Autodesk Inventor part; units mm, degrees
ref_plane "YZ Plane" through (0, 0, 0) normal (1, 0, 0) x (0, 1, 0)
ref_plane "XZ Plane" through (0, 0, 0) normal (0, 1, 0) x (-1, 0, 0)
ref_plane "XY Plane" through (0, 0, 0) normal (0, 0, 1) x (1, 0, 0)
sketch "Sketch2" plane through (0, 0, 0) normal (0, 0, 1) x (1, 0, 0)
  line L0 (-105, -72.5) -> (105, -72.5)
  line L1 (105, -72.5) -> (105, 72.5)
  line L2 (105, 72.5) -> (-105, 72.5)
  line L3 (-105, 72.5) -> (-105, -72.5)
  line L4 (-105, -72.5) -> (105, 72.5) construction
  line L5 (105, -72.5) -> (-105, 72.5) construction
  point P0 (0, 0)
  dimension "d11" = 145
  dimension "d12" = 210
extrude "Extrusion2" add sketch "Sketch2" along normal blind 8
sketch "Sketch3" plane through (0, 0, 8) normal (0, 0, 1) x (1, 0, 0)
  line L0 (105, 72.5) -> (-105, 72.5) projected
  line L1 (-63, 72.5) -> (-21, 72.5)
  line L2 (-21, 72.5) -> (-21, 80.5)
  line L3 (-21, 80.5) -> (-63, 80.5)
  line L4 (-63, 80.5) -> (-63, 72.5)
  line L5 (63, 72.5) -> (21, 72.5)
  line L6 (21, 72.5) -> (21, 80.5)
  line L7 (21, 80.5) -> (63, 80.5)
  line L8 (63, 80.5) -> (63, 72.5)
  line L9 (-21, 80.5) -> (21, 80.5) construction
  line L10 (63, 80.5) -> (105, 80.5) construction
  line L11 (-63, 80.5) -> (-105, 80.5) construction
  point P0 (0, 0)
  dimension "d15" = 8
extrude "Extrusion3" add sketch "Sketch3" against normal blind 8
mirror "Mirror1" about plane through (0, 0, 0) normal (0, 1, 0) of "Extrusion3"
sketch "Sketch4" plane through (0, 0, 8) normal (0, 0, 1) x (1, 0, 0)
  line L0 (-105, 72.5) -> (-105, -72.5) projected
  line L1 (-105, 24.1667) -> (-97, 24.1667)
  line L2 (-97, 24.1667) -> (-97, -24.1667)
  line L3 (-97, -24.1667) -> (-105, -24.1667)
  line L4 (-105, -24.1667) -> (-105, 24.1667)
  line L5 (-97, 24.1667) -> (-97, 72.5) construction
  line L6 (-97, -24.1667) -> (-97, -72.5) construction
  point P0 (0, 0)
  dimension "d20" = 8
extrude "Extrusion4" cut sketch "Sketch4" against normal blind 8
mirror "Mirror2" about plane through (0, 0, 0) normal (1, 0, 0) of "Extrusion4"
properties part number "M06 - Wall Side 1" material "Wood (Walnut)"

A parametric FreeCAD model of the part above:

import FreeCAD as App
import Part
import Sketcher
Q = App.Units.Quantity


def add_polygon(sketch, points):
    """Adds a closed chain of lines whose ends are joined by coincident constraints."""
    first, n = sketch.GeometryCount, len(points)
    for a, b in zip(points, points[1:] + points[:1]):
        sketch.addGeometry(Part.LineSegment(App.Vector(*a, 0), App.Vector(*b, 0)), False)
    for i in range(n):
        sketch.addConstraint(Sketcher.Constraint("Coincident", first + i, 2, first + (i + 1) % n, 1))

doc = App.newDocument("Part")
params = doc.addObject("Spreadsheet::Sheet", "Params")
for row, (alias, value) in enumerate([
    ("sketch1_width", "210 mm"),
    ("sketch1_height", "145 mm"),
    ("pad1_length", "8 mm"),
    ("sketch2_height", "8 mm"),
    ("sketch2_width", "42 mm"),
    ("pad2_length", "8 mm"),
    ("sketch3_width", "8 mm"),
    ("pocket1_length", "8 mm"),
], start=1):
    params.set(f"A{row}", alias)
    params.set(f"B{row}", "=" + value)
    params.setAlias(f"B{row}", alias)

body = doc.addObject("PartDesign::Body", "Body")

sketch1 = body.newObject("Sketcher::SketchObject", "Sketch")
sketch1.AttachmentSupport = (doc.getObject("XY_Plane"), [""])
sketch1.MapMode = "FlatFace"
add_polygon(sketch1, [(-105, 72.5), (-105, -72.5), (105, -72.5), (105, 72.5)])
sketch1.addConstraint(Sketcher.Constraint("Vertical", 0))
sketch1.addConstraint(Sketcher.Constraint("Horizontal", 1))
sketch1.addConstraint(Sketcher.Constraint("Vertical", 2))
sketch1.addConstraint(Sketcher.Constraint("Horizontal", 3))
sketch1.addConstraint(Sketcher.Constraint("Symmetric", 0, 2, 2, 2, -1, 1))
sketch1.addConstraint(Sketcher.Constraint("DistanceX", 1, 1, 1, 2, Q("210 mm")))
sketch1.addConstraint(Sketcher.Constraint("DistanceY", 0, 2, 0, 1, Q("145 mm")))
sketch1.setExpression("Constraints[9]", "Params.sketch1_width")
sketch1.setExpression("Constraints[10]", "Params.sketch1_height")
pad1 = body.newObject("PartDesign::Pad", "Pad")
pad1.Profile = sketch1
pad1.setExpression("Length", "Params.pad1_length")

sketch2 = body.newObject("Sketcher::SketchObject", "Sketch001")
sketch2.AttachmentSupport = (doc.getObject("XY_Plane"), [""])
sketch2.MapMode = "FlatFace"
sketch2.AttachmentOffset = App.Placement(App.Vector(0, 0, 8), App.Rotation())
add_polygon(sketch2, [(-63, 72.5), (-21, 72.5), (-21, 80.5), (-63, 80.5)])
add_polygon(sketch2, [(21, 72.5), (63, 72.5), (63, 80.5), (21, 80.5)])
sketch2.addConstraint(Sketcher.Constraint("Horizontal", 0))
sketch2.addConstraint(Sketcher.Constraint("Vertical", 1))
sketch2.addConstraint(Sketcher.Constraint("Horizontal", 2))
sketch2.addConstraint(Sketcher.Constraint("Vertical", 3))
sketch2.addConstraint(Sketcher.Constraint("Horizontal", 4))
sketch2.addConstraint(Sketcher.Constraint("Vertical", 5))
sketch2.addConstraint(Sketcher.Constraint("Horizontal", 6))
sketch2.addConstraint(Sketcher.Constraint("Vertical", 7))
sketch2.addConstraint(Sketcher.Constraint("Symmetric", 3, 2, 4, 2, -2))
sketch2.addConstraint(Sketcher.Constraint("Symmetric", 1, 2, 6, 2, -2))
sketch2.addConstraint(Sketcher.Constraint("DistanceY", 1, 1, 1, 2, Q("8 mm")))
sketch2.addConstraint(Sketcher.Constraint("DistanceX", 0, 1, 0, 2, Q("42 mm")))
sketch2.addConstraint(Sketcher.Constraint("DistanceX", 0, 2, -1, 1, Q("21 mm")))
sketch2.addConstraint(Sketcher.Constraint("DistanceY", -1, 1, 0, 2, Q("72.5 mm")))
sketch2.setExpression("Constraints[18]", "Params.sketch2_height")
sketch2.setExpression("Constraints[19]", "Params.sketch2_width")
pad2 = body.newObject("PartDesign::Pad", "Pad001")
pad2.Profile = sketch2
pad2.setExpression("Length", "Params.pad2_length")
pad2.Reversed = True
doc.recompute()

mirrored = body.newObject("PartDesign::Mirrored", "Mirrored")
mirrored.Originals = [pad2]
mirrored.MirrorPlane = (doc.getObject("XZ_Plane"), [""])
body.Tip = mirrored

sketch3 = body.newObject("Sketcher::SketchObject", "Sketch002")
sketch3.AttachmentSupport = (doc.getObject("XY_Plane"), [""])
sketch3.MapMode = "FlatFace"
sketch3.AttachmentOffset = App.Placement(App.Vector(0, 0, 8), App.Rotation())
add_polygon(sketch3, [(-97, 24.1667), (-105, 24.1667), (-105, -24.1667), (-97, -24.1667)])
sketch3.addConstraint(Sketcher.Constraint("Horizontal", 0))
sketch3.addConstraint(Sketcher.Constraint("Vertical", 1))
sketch3.addConstraint(Sketcher.Constraint("Horizontal", 2))
sketch3.addConstraint(Sketcher.Constraint("Vertical", 3))
sketch3.addConstraint(Sketcher.Constraint("DistanceX", 0, 2, 0, 1, Q("8 mm")))
sketch3.addConstraint(Sketcher.Constraint("DistanceX", 0, 2, -1, 1, Q("105 mm")))
sketch3.addConstraint(Sketcher.Constraint("DistanceY", 1, 2, 1, 1, Q("48.3334 mm")))
sketch3.addConstraint(Sketcher.Constraint("DistanceY", -1, 1, 0, 2, Q("24.1667 mm")))
sketch3.setExpression("Constraints[8]", "Params.sketch3_width")
pocket1 = body.newObject("PartDesign::Pocket", "Pocket")
pocket1.Profile = sketch3
pocket1.setExpression("Length", "Params.pocket1_length")
doc.recompute()

mirrored2 = body.newObject("PartDesign::Mirrored", "Mirrored001")
mirrored2.Originals = [pocket1]
mirrored2.MirrorPlane = (doc.getObject("YZ_Plane"), [""])
body.Tip = mirrored2

doc.recompute()
